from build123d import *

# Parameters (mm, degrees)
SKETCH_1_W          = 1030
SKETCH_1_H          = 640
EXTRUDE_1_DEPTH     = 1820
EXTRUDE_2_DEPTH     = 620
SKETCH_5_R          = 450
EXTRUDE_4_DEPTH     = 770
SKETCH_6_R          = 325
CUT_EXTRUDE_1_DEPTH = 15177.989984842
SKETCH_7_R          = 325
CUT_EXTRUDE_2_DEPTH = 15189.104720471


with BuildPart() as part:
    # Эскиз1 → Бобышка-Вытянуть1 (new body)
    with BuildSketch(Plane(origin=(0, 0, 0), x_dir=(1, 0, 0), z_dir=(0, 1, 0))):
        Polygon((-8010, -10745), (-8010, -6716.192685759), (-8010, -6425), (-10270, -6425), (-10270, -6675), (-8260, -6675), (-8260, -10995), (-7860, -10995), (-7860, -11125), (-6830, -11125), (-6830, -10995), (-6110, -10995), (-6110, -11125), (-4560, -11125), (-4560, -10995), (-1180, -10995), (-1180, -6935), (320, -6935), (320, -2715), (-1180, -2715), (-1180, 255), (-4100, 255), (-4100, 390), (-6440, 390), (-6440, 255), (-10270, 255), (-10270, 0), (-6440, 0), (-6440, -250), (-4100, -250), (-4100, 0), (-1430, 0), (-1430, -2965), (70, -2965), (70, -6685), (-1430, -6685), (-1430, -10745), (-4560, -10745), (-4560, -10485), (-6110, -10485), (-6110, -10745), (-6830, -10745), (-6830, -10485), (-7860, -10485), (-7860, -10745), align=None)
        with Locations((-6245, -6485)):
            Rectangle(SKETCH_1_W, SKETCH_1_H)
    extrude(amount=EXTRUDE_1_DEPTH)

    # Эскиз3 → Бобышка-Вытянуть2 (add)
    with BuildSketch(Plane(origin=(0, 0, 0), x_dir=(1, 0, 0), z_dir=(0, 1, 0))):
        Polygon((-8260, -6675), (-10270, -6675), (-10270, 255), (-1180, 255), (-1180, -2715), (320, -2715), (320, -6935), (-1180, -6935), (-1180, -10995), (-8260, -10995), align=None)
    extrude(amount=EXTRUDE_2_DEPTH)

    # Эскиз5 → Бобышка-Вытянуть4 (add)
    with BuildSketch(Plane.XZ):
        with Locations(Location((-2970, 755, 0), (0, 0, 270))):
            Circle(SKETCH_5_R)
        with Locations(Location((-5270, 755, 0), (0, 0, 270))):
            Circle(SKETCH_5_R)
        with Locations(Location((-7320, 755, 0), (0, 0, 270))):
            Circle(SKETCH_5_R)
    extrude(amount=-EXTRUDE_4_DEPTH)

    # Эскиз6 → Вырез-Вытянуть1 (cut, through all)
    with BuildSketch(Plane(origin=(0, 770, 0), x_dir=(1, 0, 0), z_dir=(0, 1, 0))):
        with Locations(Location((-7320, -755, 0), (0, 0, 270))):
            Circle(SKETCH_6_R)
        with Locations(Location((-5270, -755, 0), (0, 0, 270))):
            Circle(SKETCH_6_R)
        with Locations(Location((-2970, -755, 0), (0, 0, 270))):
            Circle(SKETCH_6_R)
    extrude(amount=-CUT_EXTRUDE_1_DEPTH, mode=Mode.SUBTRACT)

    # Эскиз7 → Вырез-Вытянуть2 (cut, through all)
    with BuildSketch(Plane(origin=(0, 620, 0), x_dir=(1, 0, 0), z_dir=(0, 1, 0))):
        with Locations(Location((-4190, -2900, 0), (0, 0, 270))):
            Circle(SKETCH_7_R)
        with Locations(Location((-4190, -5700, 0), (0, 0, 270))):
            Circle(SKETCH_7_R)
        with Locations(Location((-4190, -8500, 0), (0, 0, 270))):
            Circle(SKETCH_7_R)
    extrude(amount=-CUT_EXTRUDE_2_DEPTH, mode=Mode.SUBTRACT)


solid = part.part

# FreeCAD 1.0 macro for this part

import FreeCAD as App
import Part
import Sketcher
from FreeCAD import Vector

doc = App.newDocument("Part")
body = doc.addObject("PartDesign::Body", "Body")
body.AllowCompound = True

sketch1 = doc.addObject("Sketcher::SketchObject", "Sketch")
body.addObject(sketch1)
sketch1.AttachmentSupport = (doc.XZ_Plane, [""])
sketch1.MapMode = "FlatFace"
sketch1.addGeometry([
    Part.LineSegment(Vector(-8010, 10745, 0), Vector(-8010, 6425, 0)),
    Part.LineSegment(Vector(-8010, 6425, 0), Vector(-10270, 6425, 0)),
    Part.LineSegment(Vector(-10270, 6425, 0), Vector(-10270, 6675, 0)),
    Part.LineSegment(Vector(-10270, 6675, 0), Vector(-8260, 6675, 0)),
    Part.LineSegment(Vector(-8260, 6675, 0), Vector(-8260, 10995, 0)),
    Part.LineSegment(Vector(-8260, 10995, 0), Vector(-7860, 10995, 0)),
    Part.LineSegment(Vector(-7860, 10995, 0), Vector(-7860, 11125, 0)),
    Part.LineSegment(Vector(-7860, 11125, 0), Vector(-6830, 11125, 0)),
    Part.LineSegment(Vector(-6830, 11125, 0), Vector(-6830, 10995, 0)),
    Part.LineSegment(Vector(-6830, 10995, 0), Vector(-6110, 10995, 0)),
    Part.LineSegment(Vector(-6110, 10995, 0), Vector(-6110, 11125, 0)),
    Part.LineSegment(Vector(-6110, 11125, 0), Vector(-4560, 11125, 0)),
    Part.LineSegment(Vector(-4560, 11125, 0), Vector(-4560, 10995, 0)),
    Part.LineSegment(Vector(-4560, 10995, 0), Vector(-1180, 10995, 0)),
    Part.LineSegment(Vector(-1180, 10995, 0), Vector(-1180, 6935, 0)),
    Part.LineSegment(Vector(-1180, 6935, 0), Vector(320, 6935, 0)),
    Part.LineSegment(Vector(320, 6935, 0), Vector(320, 2715, 0)),
    Part.LineSegment(Vector(320, 2715, 0), Vector(-1180, 2715, 0)),
    Part.LineSegment(Vector(-1180, 2715, 0), Vector(-1180, -255, 0)),
    Part.LineSegment(Vector(-1180, -255, 0), Vector(-4100, -255, 0)),
    Part.LineSegment(Vector(-4100, -255, 0), Vector(-4100, -390, 0)),
    Part.LineSegment(Vector(-4100, -390, 0), Vector(-6440, -390, 0)),
    Part.LineSegment(Vector(-6440, -390, 0), Vector(-6440, -255, 0)),
    Part.LineSegment(Vector(-6440, -255, 0), Vector(-10270, -255, 0)),
    Part.LineSegment(Vector(-10270, -255, 0), Vector(-10270, 0, 0)),
    Part.LineSegment(Vector(-10270, 0, 0), Vector(-6440, 0, 0)),
    Part.LineSegment(Vector(-6440, 0, 0), Vector(-6440, 250, 0)),
    Part.LineSegment(Vector(-6440, 250, 0), Vector(-4100, 250, 0)),
    Part.LineSegment(Vector(-4100, 250, 0), Vector(-4100, 0, 0)),
    Part.LineSegment(Vector(-4100, 0, 0), Vector(-1430, 0, 0)),
    Part.LineSegment(Vector(-1430, 0, 0), Vector(-1430, 2965, 0)),
    Part.LineSegment(Vector(-1430, 2965, 0), Vector(70, 2965, 0)),
    Part.LineSegment(Vector(70, 2965, 0), Vector(70, 6685, 0)),
    Part.LineSegment(Vector(70, 6685, 0), Vector(-1430, 6685, 0)),
    Part.LineSegment(Vector(-1430, 6685, 0), Vector(-1430, 10745, 0)),
    Part.LineSegment(Vector(-1430, 10745, 0), Vector(-4560, 10745, 0)),
    Part.LineSegment(Vector(-4560, 10745, 0), Vector(-4560, 10485, 0)),
    Part.LineSegment(Vector(-4560, 10485, 0), Vector(-6110, 10485, 0)),
    Part.LineSegment(Vector(-6110, 10485, 0), Vector(-6110, 10745, 0)),
    Part.LineSegment(Vector(-6110, 10745, 0), Vector(-6830, 10745, 0)),
    Part.LineSegment(Vector(-6830, 10745, 0), Vector(-6830, 10485, 0)),
    Part.LineSegment(Vector(-6830, 10485, 0), Vector(-7860, 10485, 0)),
    Part.LineSegment(Vector(-7860, 10485, 0), Vector(-7860, 10745, 0)),
    Part.LineSegment(Vector(-7860, 10745, 0), Vector(-8010, 10745, 0)),
    Part.LineSegment(Vector(-6760, 6165, 0), Vector(-6760, 6805, 0)),
    Part.LineSegment(Vector(-6760, 6805, 0), Vector(-5730, 6805, 0)),
    Part.LineSegment(Vector(-5730, 6805, 0), Vector(-5730, 6165, 0)),
    Part.LineSegment(Vector(-5730, 6165, 0), Vector(-6760, 6165, 0)),
], False)
sketch1.addConstraint([
    Sketcher.Constraint("Coincident", 0, 2, 1, 1),
    Sketcher.Constraint("Coincident", 1, 2, 2, 1),
    Sketcher.Constraint("Coincident", 2, 2, 3, 1),
    Sketcher.Constraint("Coincident", 3, 2, 4, 1),
    Sketcher.Constraint("Coincident", 4, 2, 5, 1),
    Sketcher.Constraint("Coincident", 5, 2, 6, 1),
    Sketcher.Constraint("Coincident", 6, 2, 7, 1),
    Sketcher.Constraint("Coincident", 7, 2, 8, 1),
    Sketcher.Constraint("Coincident", 8, 2, 9, 1),
    Sketcher.Constraint("Coincident", 9, 2, 10, 1),
    Sketcher.Constraint("Coincident", 10, 2, 11, 1),
    Sketcher.Constraint("Coincident", 11, 2, 12, 1),
    Sketcher.Constraint("Coincident", 12, 2, 13, 1),
    Sketcher.Constraint("Coincident", 13, 2, 14, 1),
    Sketcher.Constraint("Coincident", 14, 2, 15, 1),
    Sketcher.Constraint("Coincident", 15, 2, 16, 1),
    Sketcher.Constraint("Coincident", 16, 2, 17, 1),
    Sketcher.Constraint("Coincident", 17, 2, 18, 1),
    Sketcher.Constraint("Coincident", 18, 2, 19, 1),
    Sketcher.Constraint("Coincident", 19, 2, 20, 1),
    Sketcher.Constraint("Coincident", 20, 2, 21, 1),
    Sketcher.Constraint("Coincident", 21, 2, 22, 1),
    Sketcher.Constraint("Coincident", 22, 2, 23, 1),
    Sketcher.Constraint("Coincident", 23, 2, 24, 1),
    Sketcher.Constraint("Coincident", 24, 2, 25, 1),
    Sketcher.Constraint("Coincident", 25, 2, 26, 1),
    Sketcher.Constraint("Coincident", 26, 2, 27, 1),
    Sketcher.Constraint("Coincident", 27, 2, 28, 1),
    Sketcher.Constraint("Coincident", 28, 2, 29, 1),
    Sketcher.Constraint("Coincident", 29, 2, 30, 1),
    Sketcher.Constraint("Coincident", 30, 2, 31, 1),
    Sketcher.Constraint("Coincident", 31, 2, 32, 1),
    Sketcher.Constraint("Coincident", 32, 2, 33, 1),
    Sketcher.Constraint("Coincident", 33, 2, 34, 1),
    Sketcher.Constraint("Coincident", 34, 2, 35, 1),
    Sketcher.Constraint("Coincident", 35, 2, 36, 1),
    Sketcher.Constraint("Coincident", 36, 2, 37, 1),
    Sketcher.Constraint("Coincident", 37, 2, 38, 1),
    Sketcher.Constraint("Coincident", 38, 2, 39, 1),
    Sketcher.Constraint("Coincident", 39, 2, 40, 1),
    Sketcher.Constraint("Coincident", 40, 2, 41, 1),
    Sketcher.Constraint("Coincident", 41, 2, 42, 1),
    Sketcher.Constraint("Coincident", 42, 2, 43, 1),
    Sketcher.Constraint("Coincident", 43, 2, 0, 1),
    Sketcher.Constraint("Coincident", 44, 2, 45, 1),
    Sketcher.Constraint("Coincident", 45, 2, 46, 1),
    Sketcher.Constraint("Coincident", 46, 2, 47, 1),
    Sketcher.Constraint("Coincident", 47, 2, 44, 1),
    Sketcher.Constraint("Vertical", 0),
    Sketcher.Constraint("Horizontal", 1),
    Sketcher.Constraint("Vertical", 2),
    Sketcher.Constraint("Horizontal", 3),
    Sketcher.Constraint("Vertical", 4),
    Sketcher.Constraint("Horizontal", 5),
    Sketcher.Constraint("Vertical", 6),
    Sketcher.Constraint("Horizontal", 7),
    Sketcher.Constraint("Vertical", 8),
    Sketcher.Constraint("Horizontal", 9),
    Sketcher.Constraint("Vertical", 10),
    Sketcher.Constraint("Horizontal", 11),
    Sketcher.Constraint("Vertical", 12),
    Sketcher.Constraint("Horizontal", 13),
    Sketcher.Constraint("Vertical", 14),
    Sketcher.Constraint("Horizontal", 15),
    Sketcher.Constraint("Vertical", 16),
    Sketcher.Constraint("Horizontal", 17),
    Sketcher.Constraint("Vertical", 18),
    Sketcher.Constraint("Horizontal", 19),
    Sketcher.Constraint("Vertical", 20),
    Sketcher.Constraint("Horizontal", 21),
    Sketcher.Constraint("Vertical", 22),
    Sketcher.Constraint("Horizontal", 23),
    Sketcher.Constraint("Vertical", 24),
    Sketcher.Constraint("Horizontal", 25),
    Sketcher.Constraint("Vertical", 26),
    Sketcher.Constraint("Horizontal", 27),
    Sketcher.Constraint("Vertical", 28),
    Sketcher.Constraint("Horizontal", 29),
    Sketcher.Constraint("Vertical", 30),
    Sketcher.Constraint("Horizontal", 31),
    Sketcher.Constraint("Vertical", 32),
    Sketcher.Constraint("Horizontal", 33),
    Sketcher.Constraint("Vertical", 34),
    Sketcher.Constraint("Horizontal", 35),
    Sketcher.Constraint("Vertical", 36),
    Sketcher.Constraint("Horizontal", 37),
    Sketcher.Constraint("Vertical", 38),
    Sketcher.Constraint("Horizontal", 39),
    Sketcher.Constraint("Vertical", 40),
    Sketcher.Constraint("Horizontal", 41),
    Sketcher.Constraint("Vertical", 42),
    Sketcher.Constraint("Horizontal", 43),
    Sketcher.Constraint("Vertical", 44),
    Sketcher.Constraint("Horizontal", 45),
    Sketcher.Constraint("Vertical", 46),
    Sketcher.Constraint("Horizontal", 47),
    Sketcher.Constraint("PointOnObject", 24, 2, -1),
    Sketcher.Constraint("PointOnObject", 28, 2, -1),
    Sketcher.Constraint("Horizontal", 5, 2, 8, 2),
    Sketcher.Constraint("Horizontal", 7, 2, 10, 2),
    Sketcher.Constraint("Horizontal", 9, 2, 12, 2),
    Sketcher.Constraint("Horizontal", 19, 2, 22, 2),
    Sketcher.Constraint("Horizontal", 35, 2, 38, 2),
    Sketcher.Constraint("Horizontal", 37, 2, 40, 2),
    Sketcher.Constraint("Horizontal", 39, 2, 42, 2),
    Sketcher.Constraint("Vertical", 14, 2, 17, 2),
    Sketcher.Constraint("Vertical", 2, 2, 23, 2),
    Sketcher.Constraint("Vertical", 22, 2, 25, 2),
    Sketcher.Constraint("Vertical", 20, 2, 27, 2),
    Sketcher.Constraint("Vertical", 30, 2, 33, 2),
    Sketcher.Constraint("Vertical", 12, 2, 35, 2),
    Sketcher.Constraint("Vertical", 10, 2, 37, 2),
    Sketcher.Constraint("Vertical", 8, 2, 39, 2),
    Sketcher.Constraint("Vertical", 6, 2, 41, 2),
    Sketcher.Constraint("Equal", 17, 31),
    Sketcher.Constraint("Equal", 41, 45),
    Sketcher.Constraint("Equal", 0, 4),
    Sketcher.Constraint("Equal", 2, 26),
    Sketcher.Constraint("Equal", 14, 34),
    Sketcher.Constraint("DistanceX", 1, 2, 1, 1, 2260.0),
    Sketcher.Constraint("DistanceX", 3, 1, 3, 2, 2010.0),
    Sketcher.Constraint("DistanceX", 5, 1, 5, 2, 400.0),
    Sketcher.Constraint("DistanceX", 7, 1, 7, 2, 1030.0),
    Sketcher.Constraint("DistanceX", 9, 1, 9, 2, 720.0),
    Sketcher.Constraint("DistanceX", 11, 1, 11, 2, 1550.0),
    Sketcher.Constraint("DistanceX", 13, 1, 13, 2, 3380.0),
    Sketcher.Constraint("DistanceX", 15, 1, 15, 2, 1500.0),
    Sketcher.Constraint("DistanceX", 19, 2, 19, 1, 2920.0),
    Sketcher.Constraint("DistanceX", 21, 2, 21, 1, 2340.0),
    Sketcher.Constraint("DistanceX", 29, 1, 29, 2, 2670.0),
    Sketcher.Constraint("DistanceY", 0, 2, 0, 1, 4320.0),
    Sketcher.Constraint("DistanceY", 2, 1, 2, 2, 250.0),
    Sketcher.Constraint("DistanceY", 6, 1, 6, 2, 130.0),
    Sketcher.Constraint("DistanceY", 14, 2, 14, 1, 4060.0),
    Sketcher.Constraint("DistanceY", 16, 2, 16, 1, 4220.0),
    Sketcher.Constraint("DistanceY", 18, 2, 18, 1, 2970.0),
    Sketcher.Constraint("DistanceY", 20, 2, 20, 1, 135.0),
    Sketcher.Constraint("DistanceY", 24, 1, 24, 2, 255.0),
    Sketcher.Constraint("DistanceY", 30, 1, 30, 2, 2965.0),
    Sketcher.Constraint("DistanceY", 36, 2, 36, 1, 260.0),
    Sketcher.Constraint("DistanceY", 44, 1, 44, 2, 640.0),
    Sketcher.Constraint("DistanceX", 0, 2, -1, 1, 8010.0),
    Sketcher.Constraint("DistanceX", 44, 2, -1, 1, 6760.0),
    Sketcher.Constraint("DistanceY", -1, 1, 44, 2, 6805.0),
])
pad1 = doc.addObject("PartDesign::Pad", "Pad")
body.addObject(pad1)
pad1.Profile = sketch1
pad1.Length = 1820
pad1.Reversed = True

sketch2 = doc.addObject("Sketcher::SketchObject", "Sketch001")
body.addObject(sketch2)
sketch2.AttachmentSupport = (doc.XZ_Plane, [""])
sketch2.MapMode = "FlatFace"
sketch2.addGeometry([
    Part.LineSegment(Vector(-10270, 6675, 0), Vector(-8260, 6675, 0)),
    Part.LineSegment(Vector(-8260, 6675, 0), Vector(-8260, 10995, 0)),
    Part.LineSegment(Vector(-8260, 10995, 0), Vector(-1180, 10995, 0)),
    Part.LineSegment(Vector(-1180, 10995, 0), Vector(-1180, 6935, 0)),
    Part.LineSegment(Vector(-1180, 6935, 0), Vector(320, 6935, 0)),
    Part.LineSegment(Vector(320, 6935, 0), Vector(320, 2715, 0)),
    Part.LineSegment(Vector(320, 2715, 0), Vector(-1180, 2715, 0)),
    Part.LineSegment(Vector(-1180, 2715, 0), Vector(-1180, -255, 0)),
    Part.LineSegment(Vector(-1180, -255, 0), Vector(-10270, -255, 0)),
    Part.LineSegment(Vector(-10270, -255, 0), Vector(-10270, 6675, 0)),
], False)
sketch2.addConstraint([
    Sketcher.Constraint("Coincident", 0, 2, 1, 1),
    Sketcher.Constraint("Coincident", 1, 2, 2, 1),
    Sketcher.Constraint("Coincident", 2, 2, 3, 1),
    Sketcher.Constraint("Coincident", 3, 2, 4, 1),
    Sketcher.Constraint("Coincident", 4, 2, 5, 1),
    Sketcher.Constraint("Coincident", 5, 2, 6, 1),
    Sketcher.Constraint("Coincident", 6, 2, 7, 1),
    Sketcher.Constraint("Coincident", 7, 2, 8, 1),
    Sketcher.Constraint("Coincident", 8, 2, 9, 1),
    Sketcher.Constraint("Coincident", 9, 2, 0, 1),
    Sketcher.Constraint("Horizontal", 0),
    Sketcher.Constraint("Vertical", 1),
    Sketcher.Constraint("Horizontal", 2),
    Sketcher.Constraint("Vertical", 3),
    Sketcher.Constraint("Horizontal", 4),
    Sketcher.Constraint("Vertical", 5),
    Sketcher.Constraint("Horizontal", 6),
    Sketcher.Constraint("Vertical", 7),
    Sketcher.Constraint("Horizontal", 8),
    Sketcher.Constraint("Vertical", 9),
    Sketcher.Constraint("Vertical", 3, 2, 6, 2),
    Sketcher.Constraint("DistanceX", 0, 1, 0, 2, 2010.0),
    Sketcher.Constraint("DistanceX", 2, 1, 2, 2, 7080.0),
    Sketcher.Constraint("DistanceX", 4, 1, 4, 2, 1500.0),
    Sketcher.Constraint("DistanceY", 1, 1, 1, 2, 4320.0),
    Sketcher.Constraint("DistanceY", 3, 2, 3, 1, 4060.0),
    Sketcher.Constraint("DistanceY", 5, 2, 5, 1, 4220.0),
    Sketcher.Constraint("DistanceY", 7, 2, 7, 1, 2970.0),
    Sketcher.Constraint("DistanceX", 0, 2, -1, 1, 8260.0),
    Sketcher.Constraint("DistanceY", -1, 1, 0, 2, 6675.0),
])
pad2 = doc.addObject("PartDesign::Pad", "Pad001")
body.addObject(pad2)
pad2.Profile = sketch2
pad2.Length = 620
pad2.Reversed = True

sketch3 = doc.addObject("Sketcher::SketchObject", "Sketch002")
body.addObject(sketch3)
sketch3.AttachmentSupport = (doc.XZ_Plane, [""])
sketch3.MapMode = "FlatFace"
sketch3.addGeometry([
    Part.Circle(Vector(-2970, 755, 0), Vector(0, 0, 1), 450),
    Part.Circle(Vector(-5270, 755, 0), Vector(0, 0, 1), 450),
    Part.Circle(Vector(-7320, 755, 0), Vector(0, 0, 1), 450),
], False)
sketch3.addConstraint([
    Sketcher.Constraint("Equal", 0, 1),
    Sketcher.Constraint("Equal", 1, 2),
    Sketcher.Constraint("Horizontal", 0, 3, 1, 3),
    Sketcher.Constraint("Horizontal", 1, 3, 2, 3),
    Sketcher.Constraint("Diameter", 0, 900.0),
    Sketcher.Constraint("DistanceX", 0, 3, -1, 1, 2970.0),
    Sketcher.Constraint("DistanceY", -1, 1, 0, 3, 755.0),
    Sketcher.Constraint("DistanceX", 1, 3, -1, 1, 5270.0),
    Sketcher.Constraint("DistanceX", 2, 3, -1, 1, 7320.0),
])
pad3 = doc.addObject("PartDesign::Pad", "Pad002")
body.addObject(pad3)
pad3.Profile = sketch3
pad3.Length = 770
pad3.Reversed = True

sketch4 = doc.addObject("Sketcher::SketchObject", "Sketch003")
body.addObject(sketch4)
sketch4.AttachmentSupport = (doc.XZ_Plane, [""])
sketch4.MapMode = "FlatFace"
sketch4.AttachmentOffset = App.Placement(Vector(0, 0, -770), App.Rotation())
sketch4.addGeometry([
    Part.Circle(Vector(-7320, 755, 0), Vector(0, 0, 1), 325),
    Part.Circle(Vector(-5270, 755, 0), Vector(0, 0, 1), 325),
    Part.Circle(Vector(-2970, 755, 0), Vector(0, 0, 1), 325),
], False)
sketch4.addConstraint([
    Sketcher.Constraint("Equal", 0, 1),
    Sketcher.Constraint("Equal", 1, 2),
    Sketcher.Constraint("Horizontal", 0, 3, 1, 3),
    Sketcher.Constraint("Horizontal", 1, 3, 2, 3),
    Sketcher.Constraint("Diameter", 0, 650.0),
    Sketcher.Constraint("DistanceX", 0, 3, -1, 1, 7320.0),
    Sketcher.Constraint("DistanceY", -1, 1, 0, 3, 755.0),
    Sketcher.Constraint("DistanceX", 1, 3, -1, 1, 5270.0),
    Sketcher.Constraint("DistanceX", 2, 3, -1, 1, 2970.0),
])
pocket1 = doc.addObject("PartDesign::Pocket", "Pocket")
body.addObject(pocket1)
pocket1.Profile = sketch4
pocket1.Type = "ThroughAll"
pocket1.Reversed = True

sketch5 = doc.addObject("Sketcher::SketchObject", "Sketch004")
body.addObject(sketch5)
sketch5.AttachmentSupport = (doc.XZ_Plane, [""])
sketch5.MapMode = "FlatFace"
sketch5.AttachmentOffset = App.Placement(Vector(0, 0, -620), App.Rotation())
sketch5.addGeometry([
    Part.Circle(Vector(-4190, 2900, 0), Vector(0, 0, 1), 325),
    Part.Circle(Vector(-4190, 5700, 0), Vector(0, 0, 1), 325),
    Part.Circle(Vector(-4190, 8500, 0), Vector(0, 0, 1), 325),
], False)
sketch5.addConstraint([
    Sketcher.Constraint("Equal", 0, 1),
    Sketcher.Constraint("Equal", 1, 2),
    Sketcher.Constraint("Vertical", 0, 3, 1, 3),
    Sketcher.Constraint("Vertical", 1, 3, 2, 3),
    Sketcher.Constraint("Diameter", 0, 650.0),
    Sketcher.Constraint("DistanceX", 0, 3, -1, 1, 4190.0),
    Sketcher.Constraint("DistanceY", -1, 1, 0, 3, 2900.0),
    Sketcher.Constraint("DistanceY", -1, 1, 1, 3, 5700.0),
    Sketcher.Constraint("DistanceY", -1, 1, 2, 3, 8500.0),
])
pocket2 = doc.addObject("PartDesign::Pocket", "Pocket001")
body.addObject(pocket2)
pocket2.Profile = sketch5
pocket2.Type = "ThroughAll"
pocket2.Reversed = True

doc.recompute()
